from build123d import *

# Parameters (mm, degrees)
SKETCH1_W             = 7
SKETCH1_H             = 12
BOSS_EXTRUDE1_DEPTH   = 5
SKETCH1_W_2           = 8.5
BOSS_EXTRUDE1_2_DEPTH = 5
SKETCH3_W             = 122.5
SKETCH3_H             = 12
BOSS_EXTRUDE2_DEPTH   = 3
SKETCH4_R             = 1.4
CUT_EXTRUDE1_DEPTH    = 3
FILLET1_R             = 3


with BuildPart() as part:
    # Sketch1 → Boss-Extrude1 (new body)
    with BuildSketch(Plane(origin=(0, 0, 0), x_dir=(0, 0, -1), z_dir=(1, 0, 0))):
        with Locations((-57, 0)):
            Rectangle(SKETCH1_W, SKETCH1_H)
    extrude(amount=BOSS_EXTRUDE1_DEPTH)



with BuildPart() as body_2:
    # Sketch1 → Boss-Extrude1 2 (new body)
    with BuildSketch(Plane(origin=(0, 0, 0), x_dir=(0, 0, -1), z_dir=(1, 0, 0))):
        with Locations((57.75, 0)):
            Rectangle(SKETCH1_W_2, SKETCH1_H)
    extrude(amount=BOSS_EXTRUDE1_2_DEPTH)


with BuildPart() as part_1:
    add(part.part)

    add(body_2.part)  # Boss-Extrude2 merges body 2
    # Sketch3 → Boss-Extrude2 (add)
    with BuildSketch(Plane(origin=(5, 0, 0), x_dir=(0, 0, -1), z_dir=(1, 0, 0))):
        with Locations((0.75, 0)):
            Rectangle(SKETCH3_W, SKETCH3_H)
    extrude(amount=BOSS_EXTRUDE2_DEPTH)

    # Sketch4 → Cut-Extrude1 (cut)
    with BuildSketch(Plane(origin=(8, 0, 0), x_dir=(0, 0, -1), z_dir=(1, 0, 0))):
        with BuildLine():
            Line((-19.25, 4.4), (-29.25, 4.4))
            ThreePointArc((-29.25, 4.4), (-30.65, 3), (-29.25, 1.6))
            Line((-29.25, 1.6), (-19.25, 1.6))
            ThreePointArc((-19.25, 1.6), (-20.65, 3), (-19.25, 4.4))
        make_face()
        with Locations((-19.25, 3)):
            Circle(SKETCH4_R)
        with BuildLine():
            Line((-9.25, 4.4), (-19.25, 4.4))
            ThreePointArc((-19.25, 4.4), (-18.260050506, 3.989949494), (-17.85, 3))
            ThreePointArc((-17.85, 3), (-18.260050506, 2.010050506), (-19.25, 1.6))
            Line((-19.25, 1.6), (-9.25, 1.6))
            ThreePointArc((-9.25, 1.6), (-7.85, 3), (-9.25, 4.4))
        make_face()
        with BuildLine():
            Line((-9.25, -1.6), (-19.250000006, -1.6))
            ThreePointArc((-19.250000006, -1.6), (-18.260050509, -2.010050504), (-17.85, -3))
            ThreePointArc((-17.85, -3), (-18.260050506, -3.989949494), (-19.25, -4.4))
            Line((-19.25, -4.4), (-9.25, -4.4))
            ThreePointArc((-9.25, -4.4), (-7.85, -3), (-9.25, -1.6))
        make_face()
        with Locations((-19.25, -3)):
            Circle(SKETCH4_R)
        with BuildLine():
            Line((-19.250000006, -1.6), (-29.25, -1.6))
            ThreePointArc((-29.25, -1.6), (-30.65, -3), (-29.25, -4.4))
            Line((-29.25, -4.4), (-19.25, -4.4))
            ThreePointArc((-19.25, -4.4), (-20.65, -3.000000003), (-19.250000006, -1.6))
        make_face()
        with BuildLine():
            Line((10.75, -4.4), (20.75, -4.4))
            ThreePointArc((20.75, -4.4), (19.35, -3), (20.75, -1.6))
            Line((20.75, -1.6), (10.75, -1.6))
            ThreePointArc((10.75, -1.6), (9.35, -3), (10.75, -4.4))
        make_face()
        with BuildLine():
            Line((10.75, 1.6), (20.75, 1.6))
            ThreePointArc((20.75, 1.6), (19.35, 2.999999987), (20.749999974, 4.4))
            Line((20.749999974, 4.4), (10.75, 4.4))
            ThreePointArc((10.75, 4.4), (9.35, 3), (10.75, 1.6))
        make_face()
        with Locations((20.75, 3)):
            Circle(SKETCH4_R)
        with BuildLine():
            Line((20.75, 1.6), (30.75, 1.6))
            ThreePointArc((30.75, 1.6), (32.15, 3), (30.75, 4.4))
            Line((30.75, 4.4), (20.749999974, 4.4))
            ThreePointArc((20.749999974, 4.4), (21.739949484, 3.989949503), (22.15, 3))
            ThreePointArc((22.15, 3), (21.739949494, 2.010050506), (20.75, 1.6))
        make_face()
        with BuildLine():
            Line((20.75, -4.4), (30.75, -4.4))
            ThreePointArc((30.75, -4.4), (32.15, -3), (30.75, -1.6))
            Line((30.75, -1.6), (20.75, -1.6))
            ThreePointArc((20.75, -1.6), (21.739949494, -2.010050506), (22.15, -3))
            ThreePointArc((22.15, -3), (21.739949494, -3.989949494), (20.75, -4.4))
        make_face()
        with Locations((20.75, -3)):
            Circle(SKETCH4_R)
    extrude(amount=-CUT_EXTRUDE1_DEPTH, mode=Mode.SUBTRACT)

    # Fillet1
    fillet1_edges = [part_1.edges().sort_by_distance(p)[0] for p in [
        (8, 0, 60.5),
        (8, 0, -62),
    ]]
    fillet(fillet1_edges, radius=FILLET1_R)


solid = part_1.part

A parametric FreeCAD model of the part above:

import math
import FreeCAD as App
import Part
import Sketcher

V = App.Vector


def edges_at(feature, points):
    """Names of the edges that pass closest to the given points."""
    edges = feature.Shape.Edges
    near = lambda p: min(range(len(edges)), key=lambda i: edges[i].distToShape(Part.Vertex(*p))[0])
    return sorted({f"Edge{near(p) + 1}" for p in points})

doc = App.newDocument("Part")
body = doc.addObject("PartDesign::Body", "Body")

# Sketch on YZ plane
sketch1 = doc.addObject("Sketcher::SketchObject", "Sketch")
body.addObject(sketch1)
sketch1.AttachmentSupport = (doc.YZ_Plane, [""])
sketch1.MapMode = "FlatFace"
sketch1.addGeometry(Part.LineSegment(V(6, 60, 0), V(-6, 60, 0)), False)
sketch1.addGeometry(Part.LineSegment(V(-6, 60, 0), V(-6, 54, 0)), False)
sketch1.addGeometry(Part.LineSegment(V(-6, 54, 0), V(6, 54, 0)), False)
sketch1.addGeometry(Part.LineSegment(V(6, 54, 0), V(6, 60, 0)), False)
sketch1.addConstraint(Sketcher.Constraint("Coincident", 0, 2, 1, 1))
sketch1.addConstraint(Sketcher.Constraint("Coincident", 1, 2, 2, 1))
sketch1.addConstraint(Sketcher.Constraint("Coincident", 2, 2, 3, 1))
sketch1.addConstraint(Sketcher.Constraint("Coincident", 3, 2, 0, 1))
sketch1.addConstraint(Sketcher.Constraint("Horizontal", 0))
sketch1.addConstraint(Sketcher.Constraint("Vertical", 1))
sketch1.addConstraint(Sketcher.Constraint("Horizontal", 2))
sketch1.addConstraint(Sketcher.Constraint("Vertical", 3))
sketch1.addConstraint(Sketcher.Constraint("DistanceX", 0, 2, 0, 1, 12.0))
sketch1.addConstraint(Sketcher.Constraint("DistanceY", 1, 2, 1, 1, 7.0))
sketch1.addConstraint(Sketcher.Constraint("DistanceX", 0, 2, -1, 1, 6.0))
sketch1.addConstraint(Sketcher.Constraint("DistanceY", -1, 1, 0, 2, 60.5))
pad1 = doc.addObject("PartDesign::Pad", "Pad")
body.addObject(pad1)
pad1.Profile = sketch1
pad1.Length = 5
body2 = doc.addObject("PartDesign::Body", "Body001")

# Sketch on YZ plane
sketch2 = doc.addObject("Sketcher::SketchObject", "Sketch001")
body2.addObject(sketch2)
sketch2.AttachmentSupport = (doc.getObject("YZ_Plane001"), [""])
sketch2.MapMode = "FlatFace"
sketch2.addGeometry(Part.LineSegment(V(6, -54, 0), V(-6, -54, 0)), False)
sketch2.addGeometry(Part.LineSegment(V(-6, -54, 0), V(-6, -62, 0)), False)
sketch2.addGeometry(Part.LineSegment(V(-6, -62, 0), V(6, -62, 0)), False)
sketch2.addGeometry(Part.LineSegment(V(6, -62, 0), V(6, -54, 0)), False)
sketch2.addConstraint(Sketcher.Constraint("Coincident", 0, 2, 1, 1))
sketch2.addConstraint(Sketcher.Constraint("Coincident", 1, 2, 2, 1))
sketch2.addConstraint(Sketcher.Constraint("Coincident", 2, 2, 3, 1))
sketch2.addConstraint(Sketcher.Constraint("Coincident", 3, 2, 0, 1))
sketch2.addConstraint(Sketcher.Constraint("Horizontal", 0))
sketch2.addConstraint(Sketcher.Constraint("Vertical", 1))
sketch2.addConstraint(Sketcher.Constraint("Horizontal", 2))
sketch2.addConstraint(Sketcher.Constraint("Vertical", 3))
sketch2.addConstraint(Sketcher.Constraint("DistanceX", 0, 2, 0, 1, 12.0))
sketch2.addConstraint(Sketcher.Constraint("DistanceY", 1, 2, 1, 1, 8.5))
sketch2.addConstraint(Sketcher.Constraint("DistanceX", 0, 2, -1, 1, 6.0))
sketch2.addConstraint(Sketcher.Constraint("DistanceY", 1, 2, -1, 1, 62.0))
pad2 = doc.addObject("PartDesign::Pad", "Pad001")
body2.addObject(pad2)
pad2.Profile = sketch2
pad2.Length = 5
body.AllowCompound = True
doc.recompute()

boolean = doc.addObject("PartDesign::Boolean", "Boolean")
body.addObject(boolean)
boolean.Type = "Fuse"
boolean.addObjects([body2])

# Sketch on YZ plane
sketch3 = doc.addObject("Sketcher::SketchObject", "Sketch002")
body.addObject(sketch3)
sketch3.AttachmentSupport = (doc.YZ_Plane, [""])
sketch3.MapMode = "FlatFace"
sketch3.AttachmentOffset = App.Placement(V(0, 0, 5), App.Rotation())
sketch3.addGeometry(Part.LineSegment(V(6, 60, 0), V(-6, 60, 0)), False)
sketch3.addGeometry(Part.LineSegment(V(-6, 60, 0), V(-6, -62, 0)), False)
sketch3.addGeometry(Part.LineSegment(V(-6, -62, 0), V(6, -62, 0)), False)
sketch3.addGeometry(Part.LineSegment(V(6, -62, 0), V(6, 60, 0)), False)
sketch3.addConstraint(Sketcher.Constraint("Coincident", 0, 2, 1, 1))
sketch3.addConstraint(Sketcher.Constraint("Coincident", 1, 2, 2, 1))
sketch3.addConstraint(Sketcher.Constraint("Coincident", 2, 2, 3, 1))
sketch3.addConstraint(Sketcher.Constraint("Coincident", 3, 2, 0, 1))
sketch3.addConstraint(Sketcher.Constraint("Horizontal", 0))
sketch3.addConstraint(Sketcher.Constraint("Vertical", 1))
sketch3.addConstraint(Sketcher.Constraint("Horizontal", 2))
sketch3.addConstraint(Sketcher.Constraint("Vertical", 3))
sketch3.addConstraint(Sketcher.Constraint("DistanceX", 0, 2, 0, 1, 12.0))
sketch3.addConstraint(Sketcher.Constraint("DistanceY", 1, 2, 1, 1, 122.5))
sketch3.addConstraint(Sketcher.Constraint("DistanceX", 0, 2, -1, 1, 6.0))
sketch3.addConstraint(Sketcher.Constraint("DistanceY", 1, 2, -1, 1, 62.0))
pad3 = doc.addObject("PartDesign::Pad", "Pad002")
body.addObject(pad3)
pad3.Profile = sketch3
pad3.Length = 3

# Sketch on YZ plane
sketch4 = doc.addObject("Sketcher::SketchObject", "Sketch003")
body.addObject(sketch4)
sketch4.AttachmentSupport = (doc.YZ_Plane, [""])
sketch4.MapMode = "FlatFace"
sketch4.AttachmentOffset = App.Placement(V(0, 0, 8), App.Rotation())
sketch4.addGeometry(Part.ArcOfCircle(Part.Circle(V(3, 29.2, 0), V(0, 0, 1), 1.4), math.radians(0), math.radians(180)), False)
sketch4.addGeometry(Part.LineSegment(V(1.6, 29.2, 0), V(1.6, 9.2, 0)), False)
sketch4.addGeometry(Part.ArcOfCircle(Part.Circle(V(3, 9.2, 0), V(0, 0, 1), 1.4), math.radians(180), math.radians(360)), False)
sketch4.addGeometry(Part.LineSegment(V(4.4, 9.2, 0), V(4.4, 29.2, 0)), False)
sketch4.addGeometry(Part.LineSegment(V(-1.6, 9.2, 0), V(-1.6, 29.2, 0)), False)
sketch4.addGeometry(Part.ArcOfCircle(Part.Circle(V(-3, 29.2, 0), V(0, 0, 1), 1.4), math.radians(0), math.radians(180)), False)
sketch4.addGeometry(Part.LineSegment(V(-4.4, 29.2, 0), V(-4.4, 9.2, 0)), False)
sketch4.addGeometry(Part.ArcOfCircle(Part.Circle(V(-3, 9.2, 0), V(0, 0, 1), 1.4), math.radians(180), math.radians(360)), False)
sketch4.addGeometry(Part.LineSegment(V(-4.4, -10.8, 0), V(-4.4, -30.8, 0)), False)
sketch4.addGeometry(Part.ArcOfCircle(Part.Circle(V(-3, -30.8, 0), V(0, 0, 1), 1.4), math.radians(180), math.radians(360)), False)
sketch4.addGeometry(Part.LineSegment(V(-1.6, -30.8, 0), V(-1.6, -10.8, 0)), False)
sketch4.addGeometry(Part.ArcOfCircle(Part.Circle(V(-3, -10.8, 0), V(0, 0, 1), 1.4), math.radians(0), math.radians(180)), False)
sketch4.addGeometry(Part.LineSegment(V(1.6, -10.8, 0), V(1.6, -30.8, 0)), False)
sketch4.addGeometry(Part.ArcOfCircle(Part.Circle(V(3, -30.8, 0), V(0, 0, 1), 1.4), math.radians(180), math.radians(360)), False)
sketch4.addGeometry(Part.LineSegment(V(4.4, -30.8, 0), V(4.4, -10.8, 0)), False)
sketch4.addGeometry(Part.ArcOfCircle(Part.Circle(V(3, -10.8, 0), V(0, 0, 1), 1.4), math.radians(0), math.radians(180)), False)
sketch4.addConstraint(Sketcher.Constraint("Tangent", 0, 2, 1, 1))
sketch4.addConstraint(Sketcher.Constraint("Tangent", 1, 2, 2, 1))
sketch4.addConstraint(Sketcher.Constraint("Tangent", 2, 2, 3, 1))
sketch4.addConstraint(Sketcher.Constraint("Tangent", 3, 2, 0, 1))
sketch4.addConstraint(Sketcher.Constraint("Tangent", 4, 2, 5, 1))
sketch4.addConstraint(Sketcher.Constraint("Tangent", 5, 2, 6, 1))
sketch4.addConstraint(Sketcher.Constraint("Tangent", 6, 2, 7, 1))
sketch4.addConstraint(Sketcher.Constraint("Tangent", 7, 2, 4, 1))
sketch4.addConstraint(Sketcher.Constraint("Tangent", 8, 2, 9, 1))
sketch4.addConstraint(Sketcher.Constraint("Tangent", 9, 2, 10, 1))
sketch4.addConstraint(Sketcher.Constraint("Tangent", 10, 2, 11, 1))
sketch4.addConstraint(Sketcher.Constraint("Tangent", 11, 2, 8, 1))
sketch4.addConstraint(Sketcher.Constraint("Tangent", 12, 2, 13, 1))
sketch4.addConstraint(Sketcher.Constraint("Tangent", 13, 2, 14, 1))
sketch4.addConstraint(Sketcher.Constraint("Tangent", 14, 2, 15, 1))
sketch4.addConstraint(Sketcher.Constraint("Tangent", 15, 2, 12, 1))
sketch4.addConstraint(Sketcher.Constraint("Vertical", 1))
sketch4.addConstraint(Sketcher.Constraint("Vertical", 3))
sketch4.addConstraint(Sketcher.Constraint("Vertical", 4))
sketch4.addConstraint(Sketcher.Constraint("Vertical", 6))
sketch4.addConstraint(Sketcher.Constraint("Vertical", 8))
sketch4.addConstraint(Sketcher.Constraint("Vertical", 10))
sketch4.addConstraint(Sketcher.Constraint("Vertical", 12))
sketch4.addConstraint(Sketcher.Constraint("Vertical", 14))
sketch4.addConstraint(Sketcher.Constraint("Equal", 2, 5))
sketch4.addConstraint(Sketcher.Constraint("Equal", 7, 9))
sketch4.addConstraint(Sketcher.Constraint("Equal", 11, 13))
sketch4.addConstraint(Sketcher.Constraint("Symmetric", 0, 3, 5, 3, -2))
sketch4.addConstraint(Sketcher.Constraint("Symmetric", 9, 3, 13, 3, -2))
sketch4.addConstraint(Sketcher.Constraint("Horizontal", 2, 3, 7, 3))
sketch4.addConstraint(Sketcher.Constraint("Horizontal", 11, 3, 15, 3))
sketch4.addConstraint(Sketcher.Constraint("Vertical", 7, 3, 9, 3))
sketch4.addConstraint(Sketcher.Constraint("Equal", 6, 8))
sketch4.addConstraint(Sketcher.Constraint("Radius", 0, 1.4))
sketch4.addConstraint(Sketcher.Constraint("DistanceY", 1, 2, 1, 1, 20.0))
sketch4.addConstraint(Sketcher.Constraint("DistanceX", -1, 1, 0, 3, 3.0))
sketch4.addConstraint(Sketcher.Constraint("DistanceY", 9, 3, 7, 3, 40.0))
sketch4.addConstraint(Sketcher.Constraint("DistanceY", -1, 1, 0, 3, 29.25))
pocket1 = doc.addObject("PartDesign::Pocket", "Pocket")
body.addObject(pocket1)
pocket1.Profile = sketch4
pocket1.Length = 3
doc.recompute()

fillet = doc.addObject("PartDesign::Fillet", "Fillet")
body.addObject(fillet)
fillet.Base = (pocket1, edges_at(pocket1, [(8, 0, 60.5), (8, 0, -62)]))
fillet.Radius = 3

doc.recompute()
